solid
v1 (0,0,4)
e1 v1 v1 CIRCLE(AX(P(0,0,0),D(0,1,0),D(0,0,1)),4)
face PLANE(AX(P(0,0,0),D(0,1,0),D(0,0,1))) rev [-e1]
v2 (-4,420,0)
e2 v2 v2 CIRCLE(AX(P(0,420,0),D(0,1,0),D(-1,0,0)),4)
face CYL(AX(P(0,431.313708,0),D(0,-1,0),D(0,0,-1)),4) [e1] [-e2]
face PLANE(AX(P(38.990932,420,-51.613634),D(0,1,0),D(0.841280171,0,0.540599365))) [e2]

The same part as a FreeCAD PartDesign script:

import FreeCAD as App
import Part
import Sketcher
from FreeCAD import Vector
Q = App.Units.Quantity

doc = App.newDocument("Part")
body = doc.addObject("PartDesign::Body", "Body")

# Sketch on XZ plane
sketch1 = doc.addObject("Sketcher::SketchObject", "Sketch")
body.addObject(sketch1)
sketch1.AttachmentSupport = (doc.XZ_Plane, [""])
sketch1.MapMode = "FlatFace"
sketch1.addGeometry(Part.Circle(Vector(0, 0, 0), Vector(0, 0, 1), 4), False)
sketch1.addConstraint([
    Sketcher.Constraint("Coincident", 0, 3, -1, 1),
    Sketcher.Constraint("Diameter", 0, Q("8 mm")),
])
pad1 = doc.addObject("PartDesign::Pad", "Pad")
body.addObject(pad1)
pad1.Profile = sketch1
pad1.Length = 420
pad1.Reversed = True

doc.recompute()
